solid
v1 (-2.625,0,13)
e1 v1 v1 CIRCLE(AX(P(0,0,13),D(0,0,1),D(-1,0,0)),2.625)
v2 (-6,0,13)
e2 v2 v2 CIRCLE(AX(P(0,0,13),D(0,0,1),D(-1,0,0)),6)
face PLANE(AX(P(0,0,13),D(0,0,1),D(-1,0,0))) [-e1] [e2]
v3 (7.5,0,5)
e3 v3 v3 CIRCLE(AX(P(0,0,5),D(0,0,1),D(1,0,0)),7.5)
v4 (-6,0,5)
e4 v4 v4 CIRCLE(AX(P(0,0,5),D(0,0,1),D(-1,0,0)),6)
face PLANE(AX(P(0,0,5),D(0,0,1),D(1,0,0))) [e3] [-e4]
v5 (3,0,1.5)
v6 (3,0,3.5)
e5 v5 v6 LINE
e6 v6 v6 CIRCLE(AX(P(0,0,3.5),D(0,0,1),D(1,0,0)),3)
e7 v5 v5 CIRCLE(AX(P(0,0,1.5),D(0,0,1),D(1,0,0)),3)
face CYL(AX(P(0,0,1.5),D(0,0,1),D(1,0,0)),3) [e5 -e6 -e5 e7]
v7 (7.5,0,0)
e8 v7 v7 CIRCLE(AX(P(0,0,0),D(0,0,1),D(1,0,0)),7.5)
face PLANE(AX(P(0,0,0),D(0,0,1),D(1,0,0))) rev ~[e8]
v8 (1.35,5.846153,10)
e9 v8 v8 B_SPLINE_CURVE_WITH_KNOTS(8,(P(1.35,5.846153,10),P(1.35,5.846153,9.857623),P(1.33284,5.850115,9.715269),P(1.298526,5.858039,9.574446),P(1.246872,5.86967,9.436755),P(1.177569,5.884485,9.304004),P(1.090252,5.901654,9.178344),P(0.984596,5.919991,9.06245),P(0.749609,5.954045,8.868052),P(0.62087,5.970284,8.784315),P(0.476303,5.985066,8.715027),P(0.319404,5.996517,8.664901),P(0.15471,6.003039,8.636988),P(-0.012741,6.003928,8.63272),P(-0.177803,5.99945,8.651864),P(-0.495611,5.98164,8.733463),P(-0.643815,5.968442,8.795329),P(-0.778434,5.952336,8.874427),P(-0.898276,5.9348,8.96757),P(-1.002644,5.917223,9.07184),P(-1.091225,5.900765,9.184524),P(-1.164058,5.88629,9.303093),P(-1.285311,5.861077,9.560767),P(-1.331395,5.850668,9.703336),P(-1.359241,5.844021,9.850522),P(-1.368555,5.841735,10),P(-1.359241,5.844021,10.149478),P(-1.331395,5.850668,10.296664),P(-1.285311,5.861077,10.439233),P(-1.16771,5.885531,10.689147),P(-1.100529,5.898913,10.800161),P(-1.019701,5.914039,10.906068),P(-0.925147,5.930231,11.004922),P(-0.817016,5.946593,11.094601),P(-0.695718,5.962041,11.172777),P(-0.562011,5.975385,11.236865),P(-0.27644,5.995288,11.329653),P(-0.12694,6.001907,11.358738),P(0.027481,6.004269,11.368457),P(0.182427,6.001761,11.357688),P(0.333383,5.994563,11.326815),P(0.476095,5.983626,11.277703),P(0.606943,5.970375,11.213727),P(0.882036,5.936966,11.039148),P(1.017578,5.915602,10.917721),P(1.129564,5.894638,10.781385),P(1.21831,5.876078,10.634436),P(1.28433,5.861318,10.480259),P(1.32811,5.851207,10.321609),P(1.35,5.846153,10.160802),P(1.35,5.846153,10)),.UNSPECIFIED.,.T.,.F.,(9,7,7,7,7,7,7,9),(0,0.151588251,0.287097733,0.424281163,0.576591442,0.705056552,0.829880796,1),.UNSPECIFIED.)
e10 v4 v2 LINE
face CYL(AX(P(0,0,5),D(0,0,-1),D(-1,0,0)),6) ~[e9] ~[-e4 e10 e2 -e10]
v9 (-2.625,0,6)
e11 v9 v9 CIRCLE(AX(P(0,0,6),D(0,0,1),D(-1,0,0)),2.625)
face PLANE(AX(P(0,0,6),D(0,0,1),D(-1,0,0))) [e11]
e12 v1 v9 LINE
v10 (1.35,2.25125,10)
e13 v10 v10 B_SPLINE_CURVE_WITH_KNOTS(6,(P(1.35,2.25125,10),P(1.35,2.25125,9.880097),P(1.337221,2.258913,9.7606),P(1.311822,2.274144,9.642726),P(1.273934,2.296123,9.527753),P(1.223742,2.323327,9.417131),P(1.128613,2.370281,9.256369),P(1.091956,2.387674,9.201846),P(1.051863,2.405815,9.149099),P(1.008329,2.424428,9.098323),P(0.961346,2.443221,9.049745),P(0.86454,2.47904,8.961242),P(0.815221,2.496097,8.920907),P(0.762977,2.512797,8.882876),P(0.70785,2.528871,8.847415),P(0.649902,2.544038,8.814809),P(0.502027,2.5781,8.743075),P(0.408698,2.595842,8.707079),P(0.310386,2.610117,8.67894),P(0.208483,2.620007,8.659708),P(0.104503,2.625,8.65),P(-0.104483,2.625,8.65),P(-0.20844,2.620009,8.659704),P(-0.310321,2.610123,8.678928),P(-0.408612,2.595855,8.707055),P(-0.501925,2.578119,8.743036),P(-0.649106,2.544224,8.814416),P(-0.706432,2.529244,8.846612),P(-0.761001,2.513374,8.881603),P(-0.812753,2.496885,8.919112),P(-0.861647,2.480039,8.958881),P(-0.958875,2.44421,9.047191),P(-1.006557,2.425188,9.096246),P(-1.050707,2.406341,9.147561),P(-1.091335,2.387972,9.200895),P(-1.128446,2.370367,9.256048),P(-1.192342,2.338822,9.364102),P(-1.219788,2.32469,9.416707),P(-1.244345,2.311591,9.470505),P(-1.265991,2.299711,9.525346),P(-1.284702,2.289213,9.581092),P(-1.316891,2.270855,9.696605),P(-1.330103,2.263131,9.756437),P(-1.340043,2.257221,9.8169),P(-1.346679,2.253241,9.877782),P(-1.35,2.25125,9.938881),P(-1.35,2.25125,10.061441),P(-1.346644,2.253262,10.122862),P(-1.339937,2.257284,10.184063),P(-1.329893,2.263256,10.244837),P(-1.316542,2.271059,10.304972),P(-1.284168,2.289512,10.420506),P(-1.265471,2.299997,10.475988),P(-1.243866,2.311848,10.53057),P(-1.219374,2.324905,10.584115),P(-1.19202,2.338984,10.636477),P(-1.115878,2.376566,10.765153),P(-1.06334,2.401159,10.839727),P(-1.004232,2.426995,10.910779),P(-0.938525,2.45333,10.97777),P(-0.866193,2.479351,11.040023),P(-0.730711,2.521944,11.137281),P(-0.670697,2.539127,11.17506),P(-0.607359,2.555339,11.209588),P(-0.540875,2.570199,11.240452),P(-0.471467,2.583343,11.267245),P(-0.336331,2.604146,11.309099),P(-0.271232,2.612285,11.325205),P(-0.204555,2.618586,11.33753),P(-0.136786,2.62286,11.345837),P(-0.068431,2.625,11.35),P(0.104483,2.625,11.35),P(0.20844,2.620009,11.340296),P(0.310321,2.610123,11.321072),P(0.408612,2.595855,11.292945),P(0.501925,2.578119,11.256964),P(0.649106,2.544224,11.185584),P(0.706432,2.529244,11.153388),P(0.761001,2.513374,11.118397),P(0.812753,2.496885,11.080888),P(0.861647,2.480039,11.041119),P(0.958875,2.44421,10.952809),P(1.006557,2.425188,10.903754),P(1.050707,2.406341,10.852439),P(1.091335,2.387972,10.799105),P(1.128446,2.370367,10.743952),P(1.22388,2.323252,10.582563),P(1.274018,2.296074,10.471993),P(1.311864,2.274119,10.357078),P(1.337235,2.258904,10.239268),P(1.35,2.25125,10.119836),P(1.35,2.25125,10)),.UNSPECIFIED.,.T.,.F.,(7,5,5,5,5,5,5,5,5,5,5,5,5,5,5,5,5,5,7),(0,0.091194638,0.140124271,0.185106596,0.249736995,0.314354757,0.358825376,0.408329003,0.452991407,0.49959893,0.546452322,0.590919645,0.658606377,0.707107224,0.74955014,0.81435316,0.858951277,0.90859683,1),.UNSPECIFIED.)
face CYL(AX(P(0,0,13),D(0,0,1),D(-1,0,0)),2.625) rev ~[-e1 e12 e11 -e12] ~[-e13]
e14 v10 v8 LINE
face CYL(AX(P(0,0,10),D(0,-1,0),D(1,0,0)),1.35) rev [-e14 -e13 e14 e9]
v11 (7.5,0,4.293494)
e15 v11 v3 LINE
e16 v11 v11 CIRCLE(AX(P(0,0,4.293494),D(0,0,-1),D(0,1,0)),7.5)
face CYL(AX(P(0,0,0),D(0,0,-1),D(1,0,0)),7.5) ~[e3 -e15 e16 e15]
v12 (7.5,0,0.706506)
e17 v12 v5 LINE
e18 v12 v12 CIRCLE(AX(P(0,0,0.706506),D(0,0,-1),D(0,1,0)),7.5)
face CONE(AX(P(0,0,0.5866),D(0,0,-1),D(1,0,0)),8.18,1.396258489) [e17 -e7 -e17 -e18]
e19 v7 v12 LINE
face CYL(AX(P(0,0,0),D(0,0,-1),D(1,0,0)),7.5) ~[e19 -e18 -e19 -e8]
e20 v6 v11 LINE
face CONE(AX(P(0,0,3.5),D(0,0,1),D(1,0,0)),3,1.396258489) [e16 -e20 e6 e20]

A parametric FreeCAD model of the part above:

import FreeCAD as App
import Part
import Sketcher
from FreeCAD import Vector
Q = App.Units.Quantity


def add_polygon(sketch, points):
    """Adds a closed chain of lines whose ends are joined by coincident constraints."""
    first, n = sketch.GeometryCount, len(points)
    for a, b in zip(points, points[1:] + points[:1]):
        sketch.addGeometry(Part.LineSegment(App.Vector(*a, 0), App.Vector(*b, 0)), False)
    for i in range(n):
        sketch.addConstraint(Sketcher.Constraint("Coincident", first + i, 2, first + (i + 1) % n, 1))

doc = App.newDocument("Part")
body = doc.addObject("PartDesign::Body", "Body")

# Sketch on XY plane
sketch1 = body.newObject("Sketcher::SketchObject", "Sketch")
sketch1.AttachmentSupport = (doc.getObject("XY_Plane"), [""])
sketch1.MapMode = "FlatFace"
sketch1.addGeometry(Part.Circle(Vector(0, 0, 0), Vector(0, 0, 1), 7.5), False)
sketch1.addConstraint(Sketcher.Constraint("Coincident", 0, 3, -1, 1))
sketch1.addConstraint(Sketcher.Constraint("Diameter", 0, Q("15 mm")))
pad1 = body.newObject("PartDesign::Pad", "Pad")
pad1.Profile = sketch1
pad1.Length = 5

# Sketch on XZ plane
sketch2 = body.newObject("Sketcher::SketchObject", "Sketch001")
sketch2.AttachmentSupport = (doc.getObject("XZ_Plane"), [""])
sketch2.MapMode = "FlatFace"
add_polygon(sketch2, [(3, 1.5), (3, 3.5), (8.18, 4.4134), (8.18, 0.5866)])  # lines 0-3
sketch2.addConstraint(Sketcher.Constraint("Vertical", 0))
sketch2.addConstraint(Sketcher.Constraint("Vertical", 2))
sketch2.addConstraint(Sketcher.Constraint("Equal", 1, 3))
sketch2.addConstraint(Sketcher.Constraint("DistanceY", 0, 1, 0, 2, Q("2 mm")))
sketch2.addConstraint(Sketcher.Constraint("DistanceX", -1, 1, 0, 2, Q("3 mm")))
sketch2.addConstraint(Sketcher.Constraint("DistanceY", -1, 1, 3, 2, Q("1.5 mm")))
sketch2.addConstraint(Sketcher.Constraint("Angle", 1, Q("10.0003 deg")))
sketch2.addConstraint(Sketcher.Constraint("Distance", 1, Q("5.26 mm")))
groove = body.newObject("PartDesign::Groove", "Groove")
groove.Profile = sketch2
groove.ReferenceAxis = (sketch2, ["V_Axis"])
groove.Angle = 360

# Sketch on XY plane
sketch3 = body.newObject("Sketcher::SketchObject", "Sketch002")
sketch3.AttachmentSupport = (doc.getObject("XY_Plane"), [""])
sketch3.MapMode = "FlatFace"
sketch3.AttachmentOffset = App.Placement(Vector(0, 0, 5), App.Rotation())
sketch3.addGeometry(Part.Circle(Vector(0, 0, 0), Vector(0, 0, 1), 6), False)
sketch3.addConstraint(Sketcher.Constraint("Coincident", 0, 3, -1, 1))
sketch3.addConstraint(Sketcher.Constraint("Diameter", 0, Q("12 mm")))
pad2 = body.newObject("PartDesign::Pad", "Pad001")
pad2.Profile = sketch3
pad2.Length = 8

# Sketch on XY plane
sketch4 = body.newObject("Sketcher::SketchObject", "Sketch003")
sketch4.AttachmentSupport = (doc.getObject("XY_Plane"), [""])
sketch4.MapMode = "FlatFace"
sketch4.AttachmentOffset = App.Placement(Vector(0, 0, 13), App.Rotation())
sketch4.addGeometry(Part.Circle(Vector(0, 0, 0), Vector(0, 0, 1), 2.625), False)
sketch4.addConstraint(Sketcher.Constraint("Coincident", 0, 3, -1, 1))
sketch4.addConstraint(Sketcher.Constraint("Diameter", 0, Q("5.25 mm")))
pocket1 = body.newObject("PartDesign::Pocket", "Pocket")
pocket1.Profile = sketch4
pocket1.Length = 7

# Sketch on XZ plane
sketch5 = body.newObject("Sketcher::SketchObject", "Sketch004")
sketch5.AttachmentSupport = (doc.getObject("XZ_Plane"), [""])
sketch5.MapMode = "FlatFace"
sketch5.addGeometry(Part.Circle(Vector(0, 10, 0), Vector(0, 0, 1), 1.35), False)
sketch5.addConstraint(Sketcher.Constraint("PointOnObject", 0, 3, -2))
sketch5.addConstraint(Sketcher.Constraint("Diameter", 0, Q("2.7 mm")))
sketch5.addConstraint(Sketcher.Constraint("DistanceY", -1, 1, 0, 3, Q("10 mm")))
pocket2 = body.newObject("PartDesign::Pocket", "Pocket001")
pocket2.Profile = sketch5
pocket2.Length = 15.5

doc.recompute()
